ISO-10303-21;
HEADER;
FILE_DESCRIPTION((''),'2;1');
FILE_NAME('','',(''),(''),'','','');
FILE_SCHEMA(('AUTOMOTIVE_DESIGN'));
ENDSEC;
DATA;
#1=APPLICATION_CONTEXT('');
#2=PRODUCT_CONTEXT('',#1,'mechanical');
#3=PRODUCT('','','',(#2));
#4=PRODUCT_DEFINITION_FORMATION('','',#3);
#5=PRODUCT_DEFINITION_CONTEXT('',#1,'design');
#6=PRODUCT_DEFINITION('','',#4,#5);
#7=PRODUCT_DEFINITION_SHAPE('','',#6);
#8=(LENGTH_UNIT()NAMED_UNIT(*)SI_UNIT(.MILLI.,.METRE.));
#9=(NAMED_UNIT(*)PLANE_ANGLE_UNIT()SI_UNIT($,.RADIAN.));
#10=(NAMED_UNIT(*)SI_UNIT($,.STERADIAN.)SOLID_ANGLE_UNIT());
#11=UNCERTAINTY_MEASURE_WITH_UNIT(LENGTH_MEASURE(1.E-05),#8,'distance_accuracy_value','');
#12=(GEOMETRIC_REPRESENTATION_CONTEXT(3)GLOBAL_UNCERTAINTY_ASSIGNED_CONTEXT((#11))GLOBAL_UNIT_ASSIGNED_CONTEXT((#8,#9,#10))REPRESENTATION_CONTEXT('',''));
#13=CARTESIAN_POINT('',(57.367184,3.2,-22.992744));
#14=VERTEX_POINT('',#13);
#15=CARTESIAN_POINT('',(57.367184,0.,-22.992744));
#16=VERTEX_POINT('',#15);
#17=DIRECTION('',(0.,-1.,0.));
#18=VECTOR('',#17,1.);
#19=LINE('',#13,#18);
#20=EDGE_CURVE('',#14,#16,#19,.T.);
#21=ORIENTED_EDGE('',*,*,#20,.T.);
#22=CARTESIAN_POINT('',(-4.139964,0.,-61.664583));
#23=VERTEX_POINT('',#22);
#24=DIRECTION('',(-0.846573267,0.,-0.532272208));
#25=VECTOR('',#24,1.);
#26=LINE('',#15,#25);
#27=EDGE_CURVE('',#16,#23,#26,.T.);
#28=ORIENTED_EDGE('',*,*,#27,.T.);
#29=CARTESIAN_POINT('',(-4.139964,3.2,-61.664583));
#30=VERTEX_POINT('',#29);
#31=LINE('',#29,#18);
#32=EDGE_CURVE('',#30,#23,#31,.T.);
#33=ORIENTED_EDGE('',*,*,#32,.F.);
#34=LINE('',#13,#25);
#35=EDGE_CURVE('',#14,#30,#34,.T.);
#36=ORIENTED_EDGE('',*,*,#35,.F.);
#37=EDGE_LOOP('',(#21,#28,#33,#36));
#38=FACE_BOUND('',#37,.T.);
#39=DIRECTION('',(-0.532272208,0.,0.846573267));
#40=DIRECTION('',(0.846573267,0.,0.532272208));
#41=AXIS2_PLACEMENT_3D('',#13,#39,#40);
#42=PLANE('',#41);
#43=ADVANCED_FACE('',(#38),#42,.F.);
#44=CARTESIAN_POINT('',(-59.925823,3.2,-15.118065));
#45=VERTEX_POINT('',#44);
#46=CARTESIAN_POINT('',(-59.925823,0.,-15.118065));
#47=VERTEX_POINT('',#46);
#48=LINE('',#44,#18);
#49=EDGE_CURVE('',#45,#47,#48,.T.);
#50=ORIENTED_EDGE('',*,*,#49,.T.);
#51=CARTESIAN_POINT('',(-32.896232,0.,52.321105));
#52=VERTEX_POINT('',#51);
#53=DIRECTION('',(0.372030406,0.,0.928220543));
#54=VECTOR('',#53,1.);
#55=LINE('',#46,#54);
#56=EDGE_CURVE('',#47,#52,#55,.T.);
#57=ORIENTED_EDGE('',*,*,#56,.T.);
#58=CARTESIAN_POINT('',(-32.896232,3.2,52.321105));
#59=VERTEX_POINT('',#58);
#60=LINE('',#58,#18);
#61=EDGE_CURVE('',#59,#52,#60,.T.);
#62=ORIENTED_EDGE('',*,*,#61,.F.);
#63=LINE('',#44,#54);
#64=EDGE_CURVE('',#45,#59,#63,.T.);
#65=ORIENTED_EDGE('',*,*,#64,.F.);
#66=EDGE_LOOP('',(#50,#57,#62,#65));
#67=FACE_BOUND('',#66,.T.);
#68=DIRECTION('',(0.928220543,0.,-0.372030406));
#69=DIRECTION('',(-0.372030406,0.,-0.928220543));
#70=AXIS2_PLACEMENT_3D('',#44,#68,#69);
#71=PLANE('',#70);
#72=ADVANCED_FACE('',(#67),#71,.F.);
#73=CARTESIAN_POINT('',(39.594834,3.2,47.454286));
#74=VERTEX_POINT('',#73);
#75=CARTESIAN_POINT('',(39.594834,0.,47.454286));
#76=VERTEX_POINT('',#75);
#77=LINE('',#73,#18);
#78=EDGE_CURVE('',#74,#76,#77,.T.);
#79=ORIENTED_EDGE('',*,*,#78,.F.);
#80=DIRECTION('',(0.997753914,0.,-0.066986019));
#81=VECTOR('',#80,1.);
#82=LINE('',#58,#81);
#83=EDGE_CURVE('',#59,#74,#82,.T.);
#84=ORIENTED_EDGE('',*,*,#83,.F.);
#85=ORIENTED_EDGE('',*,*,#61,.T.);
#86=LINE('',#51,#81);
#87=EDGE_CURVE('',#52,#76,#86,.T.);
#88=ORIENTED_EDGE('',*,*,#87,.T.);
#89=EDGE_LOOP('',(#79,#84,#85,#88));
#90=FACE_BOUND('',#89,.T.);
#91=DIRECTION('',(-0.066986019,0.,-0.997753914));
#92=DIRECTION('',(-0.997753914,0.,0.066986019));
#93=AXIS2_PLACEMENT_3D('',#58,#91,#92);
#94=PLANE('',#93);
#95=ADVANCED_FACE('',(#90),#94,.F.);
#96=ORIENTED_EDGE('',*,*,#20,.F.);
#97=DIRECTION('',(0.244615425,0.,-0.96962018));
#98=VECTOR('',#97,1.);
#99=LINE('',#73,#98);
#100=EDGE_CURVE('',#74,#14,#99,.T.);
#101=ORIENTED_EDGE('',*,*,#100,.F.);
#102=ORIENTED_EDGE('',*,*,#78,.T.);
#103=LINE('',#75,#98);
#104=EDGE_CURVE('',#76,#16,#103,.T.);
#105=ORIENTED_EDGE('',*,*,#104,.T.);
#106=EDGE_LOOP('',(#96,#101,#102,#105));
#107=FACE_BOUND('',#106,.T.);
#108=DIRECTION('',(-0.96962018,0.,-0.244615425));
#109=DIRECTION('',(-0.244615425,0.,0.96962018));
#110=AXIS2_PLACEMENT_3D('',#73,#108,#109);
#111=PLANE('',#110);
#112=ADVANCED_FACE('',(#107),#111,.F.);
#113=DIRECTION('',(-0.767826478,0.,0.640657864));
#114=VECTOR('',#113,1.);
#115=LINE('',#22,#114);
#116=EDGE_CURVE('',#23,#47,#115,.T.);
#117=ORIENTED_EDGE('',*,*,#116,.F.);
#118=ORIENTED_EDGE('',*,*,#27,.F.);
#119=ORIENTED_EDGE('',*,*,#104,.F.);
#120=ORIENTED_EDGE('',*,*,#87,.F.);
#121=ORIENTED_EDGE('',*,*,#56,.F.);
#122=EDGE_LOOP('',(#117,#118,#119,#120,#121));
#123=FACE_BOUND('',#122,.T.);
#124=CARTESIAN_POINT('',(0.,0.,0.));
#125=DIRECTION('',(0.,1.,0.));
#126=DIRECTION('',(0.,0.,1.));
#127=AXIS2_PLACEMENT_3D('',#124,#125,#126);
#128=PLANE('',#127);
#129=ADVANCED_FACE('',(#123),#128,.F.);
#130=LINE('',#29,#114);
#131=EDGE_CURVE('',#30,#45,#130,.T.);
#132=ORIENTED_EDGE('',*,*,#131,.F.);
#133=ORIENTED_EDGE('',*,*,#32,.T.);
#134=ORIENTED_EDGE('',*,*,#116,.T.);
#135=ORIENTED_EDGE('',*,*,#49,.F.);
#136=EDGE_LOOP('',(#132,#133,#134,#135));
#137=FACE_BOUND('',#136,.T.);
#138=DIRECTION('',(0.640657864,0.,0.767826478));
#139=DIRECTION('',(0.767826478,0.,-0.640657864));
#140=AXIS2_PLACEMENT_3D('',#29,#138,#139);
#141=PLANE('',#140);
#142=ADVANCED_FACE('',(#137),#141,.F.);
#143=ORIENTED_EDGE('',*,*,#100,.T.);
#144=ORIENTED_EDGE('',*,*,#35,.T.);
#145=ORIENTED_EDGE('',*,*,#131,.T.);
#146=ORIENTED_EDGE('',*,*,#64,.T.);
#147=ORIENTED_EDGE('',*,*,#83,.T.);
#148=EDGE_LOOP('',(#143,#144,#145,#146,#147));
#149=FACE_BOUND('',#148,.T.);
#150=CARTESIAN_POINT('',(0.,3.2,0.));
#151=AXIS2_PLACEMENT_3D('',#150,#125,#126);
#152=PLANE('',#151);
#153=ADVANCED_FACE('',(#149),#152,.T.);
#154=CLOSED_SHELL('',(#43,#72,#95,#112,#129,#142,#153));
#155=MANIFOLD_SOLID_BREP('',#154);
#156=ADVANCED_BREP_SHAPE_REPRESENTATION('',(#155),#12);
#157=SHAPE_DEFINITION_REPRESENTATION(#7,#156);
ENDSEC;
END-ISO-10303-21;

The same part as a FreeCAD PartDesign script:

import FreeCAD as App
import Part
import Sketcher

V = App.Vector
Q = App.Units.Quantity

doc = App.newDocument("Part")
body = doc.addObject("PartDesign::Body", "Body")

# Sketch on XZ plane
sketch1 = body.newObject("Sketcher::SketchObject", "Sketch")
sketch1.AttachmentSupport = (doc.getObject("XZ_Plane"), [""])
sketch1.MapMode = "FlatFace"
sketch1.addGeometry([
    Part.LineSegment(V(-59.925823, -15.118065, 0), V(-32.896232, 52.321105, 0)),  # 0
    Part.LineSegment(V(-32.896232, 52.321105, 0), V(39.594834, 47.454286, 0)),  # 1
    Part.LineSegment(V(39.594834, 47.454286, 0), V(57.367184, -22.992744, 0)),  # 2
    Part.LineSegment(V(57.367184, -22.992744, 0), V(-4.139964, -61.664583, 0)),  # 3
    Part.LineSegment(V(-4.139964, -61.664583, 0), V(-59.925823, -15.118065, 0)),  # 4
], False)
sketch1.addConstraint([
    Sketcher.Constraint("Coincident", 0, 2, 1, 1),
    Sketcher.Constraint("Coincident", 1, 2, 2, 1),
    Sketcher.Constraint("Coincident", 2, 2, 3, 1),
    Sketcher.Constraint("Coincident", 3, 2, 4, 1),
    Sketcher.Constraint("Coincident", 4, 2, 0, 1),
    Sketcher.Constraint("Equal", 0, 1),
    Sketcher.Constraint("Equal", 1, 2),
    Sketcher.Constraint("Equal", 2, 3),
    Sketcher.Constraint("Equal", 3, 4),
    Sketcher.Constraint("DistanceX", 0, 2, -1, 1, Q("32.896232 mm")),
    Sketcher.Constraint("DistanceY", 1, 2, 0, 2, Q("4.866819 mm")),
    Sketcher.Constraint("DistanceX", 1, 2, 2, 2, Q("17.772351 mm")),
    Sketcher.Constraint("DistanceY", 2, 2, 1, 2, Q("70.44703 mm")),
    Sketcher.Constraint("DistanceX", 3, 2, 2, 2, Q("61.507148 mm")),
    Sketcher.Constraint("DistanceY", -1, 1, 0, 2, Q("52.321105 mm")),
])
pad1 = body.newObject("PartDesign::Pad", "Pad")
pad1.Profile = sketch1
pad1.Length = 3.2
pad1.Reversed = True

doc.recompute()
